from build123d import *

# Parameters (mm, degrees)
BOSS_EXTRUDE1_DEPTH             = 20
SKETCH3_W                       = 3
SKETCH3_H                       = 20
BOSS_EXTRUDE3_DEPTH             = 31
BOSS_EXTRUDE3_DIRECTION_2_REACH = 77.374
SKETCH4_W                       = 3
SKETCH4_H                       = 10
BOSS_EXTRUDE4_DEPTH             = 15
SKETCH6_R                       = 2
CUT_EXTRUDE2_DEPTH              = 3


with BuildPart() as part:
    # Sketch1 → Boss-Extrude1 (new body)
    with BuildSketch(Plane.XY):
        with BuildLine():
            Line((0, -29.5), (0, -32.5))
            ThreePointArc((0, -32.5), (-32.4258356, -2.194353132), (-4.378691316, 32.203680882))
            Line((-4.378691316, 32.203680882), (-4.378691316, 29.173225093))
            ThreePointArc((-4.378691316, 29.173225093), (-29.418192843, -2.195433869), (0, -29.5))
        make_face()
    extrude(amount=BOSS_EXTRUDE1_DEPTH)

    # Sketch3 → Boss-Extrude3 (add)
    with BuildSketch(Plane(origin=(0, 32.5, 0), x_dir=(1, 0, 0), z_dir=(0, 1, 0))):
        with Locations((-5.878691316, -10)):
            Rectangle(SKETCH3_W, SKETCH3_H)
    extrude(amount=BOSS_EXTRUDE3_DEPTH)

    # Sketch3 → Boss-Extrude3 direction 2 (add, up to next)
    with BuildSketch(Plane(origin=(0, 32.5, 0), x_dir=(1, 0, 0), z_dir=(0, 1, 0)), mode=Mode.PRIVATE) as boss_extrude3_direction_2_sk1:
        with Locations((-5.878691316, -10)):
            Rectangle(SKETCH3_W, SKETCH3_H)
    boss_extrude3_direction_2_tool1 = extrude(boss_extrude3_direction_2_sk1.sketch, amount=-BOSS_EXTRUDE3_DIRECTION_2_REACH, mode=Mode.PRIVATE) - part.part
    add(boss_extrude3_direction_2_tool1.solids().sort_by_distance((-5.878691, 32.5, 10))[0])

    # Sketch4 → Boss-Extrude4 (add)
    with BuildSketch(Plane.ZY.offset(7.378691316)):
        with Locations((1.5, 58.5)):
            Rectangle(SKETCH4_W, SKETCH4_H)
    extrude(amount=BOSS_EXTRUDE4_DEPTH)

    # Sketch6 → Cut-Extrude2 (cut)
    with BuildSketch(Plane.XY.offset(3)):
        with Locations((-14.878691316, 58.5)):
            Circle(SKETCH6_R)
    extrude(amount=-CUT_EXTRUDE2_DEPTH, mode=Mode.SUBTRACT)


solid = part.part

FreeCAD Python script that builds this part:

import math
import FreeCAD as App
import Part
import Sketcher
Q = App.Units.Quantity


def add_polygon(sketch, points):
    """Adds a closed chain of lines whose ends are joined by coincident constraints."""
    first, n = sketch.GeometryCount, len(points)
    for a, b in zip(points, points[1:] + points[:1]):
        sketch.addGeometry(Part.LineSegment(App.Vector(*a, 0), App.Vector(*b, 0)), False)
    for i in range(n):
        sketch.addConstraint(Sketcher.Constraint("Coincident", first + i, 2, first + (i + 1) % n, 1))

doc = App.newDocument("Part")
body = doc.addObject("PartDesign::Body", "Body")
body.AllowCompound = True

sketch1 = doc.addObject("Sketcher::SketchObject", "Sketch")
body.addObject(sketch1)
sketch1.AttachmentSupport = (doc.XY_Plane, [""])
sketch1.MapMode = "FlatFace"
sketch1.addGeometry(Part.LineSegment(App.Vector(0, -32.5, 0), App.Vector(0, -29.5, 0)), False)
sketch1.addGeometry(Part.ArcOfCircle(Part.Circle(App.Vector(0, 0, 0), App.Vector(0, 0, 1), 29.5), math.radians(99), math.radians(270)), False)
sketch1.addGeometry(Part.LineSegment(App.Vector(-4.4, 29.2, 0), App.Vector(-4.4, 32.2, 0)), False)
sketch1.addGeometry(Part.ArcOfCircle(Part.Circle(App.Vector(0, 0, 0), App.Vector(0, 0, 1), 32.5), math.radians(98), math.radians(270)), False)
sketch1.addConstraint(Sketcher.Constraint("Coincident", 0, 2, 1, 2))
sketch1.addConstraint(Sketcher.Constraint("Coincident", 1, 1, 2, 1))
sketch1.addConstraint(Sketcher.Constraint("Coincident", 2, 2, 3, 1))
sketch1.addConstraint(Sketcher.Constraint("Coincident", 3, 2, 0, 1))
sketch1.addConstraint(Sketcher.Constraint("Vertical", 0))
sketch1.addConstraint(Sketcher.Constraint("Vertical", 2))
sketch1.addConstraint(Sketcher.Constraint("Coincident", 1, 3, -1, 1))
sketch1.addConstraint(Sketcher.Constraint("Coincident", 3, 3, -1, 1))
sketch1.addConstraint(Sketcher.Constraint("PointOnObject", 0, 2, -2))
sketch1.addConstraint(Sketcher.Constraint("Radius", 1, Q("29.5 mm")))
sketch1.addConstraint(Sketcher.Constraint("Radius", 3, Q("32.5 mm")))
sketch1.addConstraint(Sketcher.Constraint("DistanceY", 2, 1, 2, 2, Q("3.030456 mm")))
pad1 = doc.addObject("PartDesign::Pad", "Pad")
body.addObject(pad1)
pad1.Profile = sketch1
pad1.Length = 20

sketch2 = doc.addObject("Sketcher::SketchObject", "Sketch001")
body.addObject(sketch2)
sketch2.AttachmentSupport = (doc.XZ_Plane, [""])
sketch2.MapMode = "FlatFace"
sketch2.AttachmentOffset = App.Placement(App.Vector(0, 0, -32.5), App.Rotation())
add_polygon(sketch2, [(-7.4, 0), (-7.4, 20), (-4.4, 20), (-4.4, 0)])
sketch2.addConstraint(Sketcher.Constraint("Vertical", 0))
sketch2.addConstraint(Sketcher.Constraint("Horizontal", 1))
sketch2.addConstraint(Sketcher.Constraint("Vertical", 2))
sketch2.addConstraint(Sketcher.Constraint("Horizontal", 3))
sketch2.addConstraint(Sketcher.Constraint("PointOnObject", 2, 2, -1))
sketch2.addConstraint(Sketcher.Constraint("DistanceX", 1, 1, 1, 2, Q("3 mm")))
sketch2.addConstraint(Sketcher.Constraint("DistanceY", 0, 1, 0, 2, Q("20 mm")))
sketch2.addConstraint(Sketcher.Constraint("DistanceX", 0, 2, -1, 1, Q("7.378691 mm")))
pad2 = doc.addObject("PartDesign::Pad", "Pad001")
body.addObject(pad2)
pad2.Profile = sketch2
pad2.Length = 31
pad2.Reversed = True

sketch3 = doc.addObject("Sketcher::SketchObject", "Sketch002")
body.addObject(sketch3)
sketch3.AttachmentSupport = (doc.XZ_Plane, [""])
sketch3.MapMode = "FlatFace"
sketch3.AttachmentOffset = App.Placement(App.Vector(0, 0, -32.5), App.Rotation())
add_polygon(sketch3, [(-7.4, 0), (-7.4, 20), (-4.4, 20), (-4.4, 0)])
sketch3.addConstraint(Sketcher.Constraint("Vertical", 0))
sketch3.addConstraint(Sketcher.Constraint("Horizontal", 1))
sketch3.addConstraint(Sketcher.Constraint("Vertical", 2))
sketch3.addConstraint(Sketcher.Constraint("Horizontal", 3))
sketch3.addConstraint(Sketcher.Constraint("PointOnObject", 2, 2, -1))
sketch3.addConstraint(Sketcher.Constraint("DistanceX", 1, 1, 1, 2, Q("3 mm")))
sketch3.addConstraint(Sketcher.Constraint("DistanceY", 0, 1, 0, 2, Q("20 mm")))
sketch3.addConstraint(Sketcher.Constraint("DistanceX", 0, 2, -1, 1, Q("7.378691 mm")))
pad3 = doc.addObject("PartDesign::Pad", "Pad002")
body.addObject(pad3)
pad3.Profile = sketch3
pad3.Length = 0.848698

sketch4 = doc.addObject("Sketcher::SketchObject", "Sketch003")
body.addObject(sketch4)
sketch4.AttachmentSupport = (doc.YZ_Plane, [""])
sketch4.MapMode = "FlatFace"
sketch4.AttachmentOffset = App.Placement(App.Vector(0, 0, -7.378691), App.Rotation())
add_polygon(sketch4, [(63.5, 0), (53.5, 0), (53.5, 3), (63.5, 3)])
sketch4.addConstraint(Sketcher.Constraint("Horizontal", 0))
sketch4.addConstraint(Sketcher.Constraint("Vertical", 1))
sketch4.addConstraint(Sketcher.Constraint("Horizontal", 2))
sketch4.addConstraint(Sketcher.Constraint("Vertical", 3))
sketch4.addConstraint(Sketcher.Constraint("PointOnObject", 0, 2, -1))
sketch4.addConstraint(Sketcher.Constraint("DistanceX", 0, 2, 0, 1, Q("10 mm")))
sketch4.addConstraint(Sketcher.Constraint("DistanceY", 1, 1, 1, 2, Q("3 mm")))
sketch4.addConstraint(Sketcher.Constraint("DistanceX", -1, 1, 0, 2, Q("53.5 mm")))
pad4 = doc.addObject("PartDesign::Pad", "Pad003")
body.addObject(pad4)
pad4.Profile = sketch4
pad4.Length = 15
pad4.Reversed = True

sketch5 = doc.addObject("Sketcher::SketchObject", "Sketch004")
body.addObject(sketch5)
sketch5.AttachmentSupport = (doc.XY_Plane, [""])
sketch5.MapMode = "FlatFace"
sketch5.AttachmentOffset = App.Placement(App.Vector(0, 0, 3), App.Rotation())
sketch5.addGeometry(Part.Circle(App.Vector(-14.9, 58.5, 0), App.Vector(0, 0, 1), 2), False)
sketch5.addConstraint(Sketcher.Constraint("Diameter", 0, Q("4 mm")))
sketch5.addConstraint(Sketcher.Constraint("DistanceY", -1, 1, 0, 3, Q("58.5 mm")))
sketch5.addConstraint(Sketcher.Constraint("DistanceX", 0, 3, -1, 1, Q("14.878691 mm")))
pocket1 = doc.addObject("PartDesign::Pocket", "Pocket")
body.addObject(pocket1)
pocket1.Profile = sketch5
pocket1.Length = 3

doc.recompute()
